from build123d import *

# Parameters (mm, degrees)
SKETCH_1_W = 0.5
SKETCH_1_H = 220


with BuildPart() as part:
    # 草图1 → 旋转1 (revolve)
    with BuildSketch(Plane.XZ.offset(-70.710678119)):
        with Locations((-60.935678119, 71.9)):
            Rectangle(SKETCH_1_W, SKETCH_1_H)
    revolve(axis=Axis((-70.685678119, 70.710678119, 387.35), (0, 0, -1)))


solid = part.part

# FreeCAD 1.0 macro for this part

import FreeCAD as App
import Part
import Sketcher


def add_polygon(sketch, points):
    """Adds a closed chain of lines whose ends are joined by coincident constraints."""
    first, n = sketch.GeometryCount, len(points)
    for a, b in zip(points, points[1:] + points[:1]):
        sketch.addGeometry(Part.LineSegment(App.Vector(*a, 0), App.Vector(*b, 0)), False)
    for i in range(n):
        sketch.addConstraint(Sketcher.Constraint("Coincident", first + i, 2, first + (i + 1) % n, 1))

doc = App.newDocument("Part")
body = doc.addObject("PartDesign::Body", "Body")

# Sketch on XZ plane
sketch1 = body.newObject("Sketcher::SketchObject", "Sketch")
sketch1.AttachmentSupport = (doc.getObject("XZ_Plane"), [""])
sketch1.MapMode = "FlatFace"
sketch1.AttachmentOffset = App.Placement(App.Vector(0, 0, -70.710678), App.Rotation())
add_polygon(sketch1, [(-61.2, 181.9), (-61.2, -38.1), (-60.7, -38.1), (-60.7, 181.9)])  # lines 0-3
sketch1.addGeometry(Part.LineSegment(App.Vector(-70.7, 181.9, 0), App.Vector(-70.7, -38.1, 0)), True)  # axis
sketch1.addConstraint([
    Sketcher.Constraint("Vertical", 0),
    Sketcher.Constraint("Horizontal", 1),
    Sketcher.Constraint("Vertical", 2),
    Sketcher.Constraint("Horizontal", 3),
    Sketcher.Constraint("Vertical", 4),
    Sketcher.Constraint("Horizontal", 3, 2, 4, 1),
    Sketcher.Constraint("Horizontal", 1, 2, 4, 2),
    Sketcher.Constraint("DistanceY", 0, 2, 0, 1, 220.0),
    Sketcher.Constraint("DistanceX", 1, 1, 1, 2, 0.5),
    Sketcher.Constraint("DistanceX", 4, 1, 2, 2, 10.0),
    Sketcher.Constraint("DistanceY", 0, 2, -1, 1, 38.1),
    Sketcher.Constraint("DistanceX", 0, 2, -1, 1, 61.185678),
])
revolution = body.newObject("PartDesign::Revolution", "Revolution")
revolution.Profile = sketch1
revolution.ReferenceAxis = (sketch1, ["Axis0"])
revolution.Angle = 360

doc.recompute()
